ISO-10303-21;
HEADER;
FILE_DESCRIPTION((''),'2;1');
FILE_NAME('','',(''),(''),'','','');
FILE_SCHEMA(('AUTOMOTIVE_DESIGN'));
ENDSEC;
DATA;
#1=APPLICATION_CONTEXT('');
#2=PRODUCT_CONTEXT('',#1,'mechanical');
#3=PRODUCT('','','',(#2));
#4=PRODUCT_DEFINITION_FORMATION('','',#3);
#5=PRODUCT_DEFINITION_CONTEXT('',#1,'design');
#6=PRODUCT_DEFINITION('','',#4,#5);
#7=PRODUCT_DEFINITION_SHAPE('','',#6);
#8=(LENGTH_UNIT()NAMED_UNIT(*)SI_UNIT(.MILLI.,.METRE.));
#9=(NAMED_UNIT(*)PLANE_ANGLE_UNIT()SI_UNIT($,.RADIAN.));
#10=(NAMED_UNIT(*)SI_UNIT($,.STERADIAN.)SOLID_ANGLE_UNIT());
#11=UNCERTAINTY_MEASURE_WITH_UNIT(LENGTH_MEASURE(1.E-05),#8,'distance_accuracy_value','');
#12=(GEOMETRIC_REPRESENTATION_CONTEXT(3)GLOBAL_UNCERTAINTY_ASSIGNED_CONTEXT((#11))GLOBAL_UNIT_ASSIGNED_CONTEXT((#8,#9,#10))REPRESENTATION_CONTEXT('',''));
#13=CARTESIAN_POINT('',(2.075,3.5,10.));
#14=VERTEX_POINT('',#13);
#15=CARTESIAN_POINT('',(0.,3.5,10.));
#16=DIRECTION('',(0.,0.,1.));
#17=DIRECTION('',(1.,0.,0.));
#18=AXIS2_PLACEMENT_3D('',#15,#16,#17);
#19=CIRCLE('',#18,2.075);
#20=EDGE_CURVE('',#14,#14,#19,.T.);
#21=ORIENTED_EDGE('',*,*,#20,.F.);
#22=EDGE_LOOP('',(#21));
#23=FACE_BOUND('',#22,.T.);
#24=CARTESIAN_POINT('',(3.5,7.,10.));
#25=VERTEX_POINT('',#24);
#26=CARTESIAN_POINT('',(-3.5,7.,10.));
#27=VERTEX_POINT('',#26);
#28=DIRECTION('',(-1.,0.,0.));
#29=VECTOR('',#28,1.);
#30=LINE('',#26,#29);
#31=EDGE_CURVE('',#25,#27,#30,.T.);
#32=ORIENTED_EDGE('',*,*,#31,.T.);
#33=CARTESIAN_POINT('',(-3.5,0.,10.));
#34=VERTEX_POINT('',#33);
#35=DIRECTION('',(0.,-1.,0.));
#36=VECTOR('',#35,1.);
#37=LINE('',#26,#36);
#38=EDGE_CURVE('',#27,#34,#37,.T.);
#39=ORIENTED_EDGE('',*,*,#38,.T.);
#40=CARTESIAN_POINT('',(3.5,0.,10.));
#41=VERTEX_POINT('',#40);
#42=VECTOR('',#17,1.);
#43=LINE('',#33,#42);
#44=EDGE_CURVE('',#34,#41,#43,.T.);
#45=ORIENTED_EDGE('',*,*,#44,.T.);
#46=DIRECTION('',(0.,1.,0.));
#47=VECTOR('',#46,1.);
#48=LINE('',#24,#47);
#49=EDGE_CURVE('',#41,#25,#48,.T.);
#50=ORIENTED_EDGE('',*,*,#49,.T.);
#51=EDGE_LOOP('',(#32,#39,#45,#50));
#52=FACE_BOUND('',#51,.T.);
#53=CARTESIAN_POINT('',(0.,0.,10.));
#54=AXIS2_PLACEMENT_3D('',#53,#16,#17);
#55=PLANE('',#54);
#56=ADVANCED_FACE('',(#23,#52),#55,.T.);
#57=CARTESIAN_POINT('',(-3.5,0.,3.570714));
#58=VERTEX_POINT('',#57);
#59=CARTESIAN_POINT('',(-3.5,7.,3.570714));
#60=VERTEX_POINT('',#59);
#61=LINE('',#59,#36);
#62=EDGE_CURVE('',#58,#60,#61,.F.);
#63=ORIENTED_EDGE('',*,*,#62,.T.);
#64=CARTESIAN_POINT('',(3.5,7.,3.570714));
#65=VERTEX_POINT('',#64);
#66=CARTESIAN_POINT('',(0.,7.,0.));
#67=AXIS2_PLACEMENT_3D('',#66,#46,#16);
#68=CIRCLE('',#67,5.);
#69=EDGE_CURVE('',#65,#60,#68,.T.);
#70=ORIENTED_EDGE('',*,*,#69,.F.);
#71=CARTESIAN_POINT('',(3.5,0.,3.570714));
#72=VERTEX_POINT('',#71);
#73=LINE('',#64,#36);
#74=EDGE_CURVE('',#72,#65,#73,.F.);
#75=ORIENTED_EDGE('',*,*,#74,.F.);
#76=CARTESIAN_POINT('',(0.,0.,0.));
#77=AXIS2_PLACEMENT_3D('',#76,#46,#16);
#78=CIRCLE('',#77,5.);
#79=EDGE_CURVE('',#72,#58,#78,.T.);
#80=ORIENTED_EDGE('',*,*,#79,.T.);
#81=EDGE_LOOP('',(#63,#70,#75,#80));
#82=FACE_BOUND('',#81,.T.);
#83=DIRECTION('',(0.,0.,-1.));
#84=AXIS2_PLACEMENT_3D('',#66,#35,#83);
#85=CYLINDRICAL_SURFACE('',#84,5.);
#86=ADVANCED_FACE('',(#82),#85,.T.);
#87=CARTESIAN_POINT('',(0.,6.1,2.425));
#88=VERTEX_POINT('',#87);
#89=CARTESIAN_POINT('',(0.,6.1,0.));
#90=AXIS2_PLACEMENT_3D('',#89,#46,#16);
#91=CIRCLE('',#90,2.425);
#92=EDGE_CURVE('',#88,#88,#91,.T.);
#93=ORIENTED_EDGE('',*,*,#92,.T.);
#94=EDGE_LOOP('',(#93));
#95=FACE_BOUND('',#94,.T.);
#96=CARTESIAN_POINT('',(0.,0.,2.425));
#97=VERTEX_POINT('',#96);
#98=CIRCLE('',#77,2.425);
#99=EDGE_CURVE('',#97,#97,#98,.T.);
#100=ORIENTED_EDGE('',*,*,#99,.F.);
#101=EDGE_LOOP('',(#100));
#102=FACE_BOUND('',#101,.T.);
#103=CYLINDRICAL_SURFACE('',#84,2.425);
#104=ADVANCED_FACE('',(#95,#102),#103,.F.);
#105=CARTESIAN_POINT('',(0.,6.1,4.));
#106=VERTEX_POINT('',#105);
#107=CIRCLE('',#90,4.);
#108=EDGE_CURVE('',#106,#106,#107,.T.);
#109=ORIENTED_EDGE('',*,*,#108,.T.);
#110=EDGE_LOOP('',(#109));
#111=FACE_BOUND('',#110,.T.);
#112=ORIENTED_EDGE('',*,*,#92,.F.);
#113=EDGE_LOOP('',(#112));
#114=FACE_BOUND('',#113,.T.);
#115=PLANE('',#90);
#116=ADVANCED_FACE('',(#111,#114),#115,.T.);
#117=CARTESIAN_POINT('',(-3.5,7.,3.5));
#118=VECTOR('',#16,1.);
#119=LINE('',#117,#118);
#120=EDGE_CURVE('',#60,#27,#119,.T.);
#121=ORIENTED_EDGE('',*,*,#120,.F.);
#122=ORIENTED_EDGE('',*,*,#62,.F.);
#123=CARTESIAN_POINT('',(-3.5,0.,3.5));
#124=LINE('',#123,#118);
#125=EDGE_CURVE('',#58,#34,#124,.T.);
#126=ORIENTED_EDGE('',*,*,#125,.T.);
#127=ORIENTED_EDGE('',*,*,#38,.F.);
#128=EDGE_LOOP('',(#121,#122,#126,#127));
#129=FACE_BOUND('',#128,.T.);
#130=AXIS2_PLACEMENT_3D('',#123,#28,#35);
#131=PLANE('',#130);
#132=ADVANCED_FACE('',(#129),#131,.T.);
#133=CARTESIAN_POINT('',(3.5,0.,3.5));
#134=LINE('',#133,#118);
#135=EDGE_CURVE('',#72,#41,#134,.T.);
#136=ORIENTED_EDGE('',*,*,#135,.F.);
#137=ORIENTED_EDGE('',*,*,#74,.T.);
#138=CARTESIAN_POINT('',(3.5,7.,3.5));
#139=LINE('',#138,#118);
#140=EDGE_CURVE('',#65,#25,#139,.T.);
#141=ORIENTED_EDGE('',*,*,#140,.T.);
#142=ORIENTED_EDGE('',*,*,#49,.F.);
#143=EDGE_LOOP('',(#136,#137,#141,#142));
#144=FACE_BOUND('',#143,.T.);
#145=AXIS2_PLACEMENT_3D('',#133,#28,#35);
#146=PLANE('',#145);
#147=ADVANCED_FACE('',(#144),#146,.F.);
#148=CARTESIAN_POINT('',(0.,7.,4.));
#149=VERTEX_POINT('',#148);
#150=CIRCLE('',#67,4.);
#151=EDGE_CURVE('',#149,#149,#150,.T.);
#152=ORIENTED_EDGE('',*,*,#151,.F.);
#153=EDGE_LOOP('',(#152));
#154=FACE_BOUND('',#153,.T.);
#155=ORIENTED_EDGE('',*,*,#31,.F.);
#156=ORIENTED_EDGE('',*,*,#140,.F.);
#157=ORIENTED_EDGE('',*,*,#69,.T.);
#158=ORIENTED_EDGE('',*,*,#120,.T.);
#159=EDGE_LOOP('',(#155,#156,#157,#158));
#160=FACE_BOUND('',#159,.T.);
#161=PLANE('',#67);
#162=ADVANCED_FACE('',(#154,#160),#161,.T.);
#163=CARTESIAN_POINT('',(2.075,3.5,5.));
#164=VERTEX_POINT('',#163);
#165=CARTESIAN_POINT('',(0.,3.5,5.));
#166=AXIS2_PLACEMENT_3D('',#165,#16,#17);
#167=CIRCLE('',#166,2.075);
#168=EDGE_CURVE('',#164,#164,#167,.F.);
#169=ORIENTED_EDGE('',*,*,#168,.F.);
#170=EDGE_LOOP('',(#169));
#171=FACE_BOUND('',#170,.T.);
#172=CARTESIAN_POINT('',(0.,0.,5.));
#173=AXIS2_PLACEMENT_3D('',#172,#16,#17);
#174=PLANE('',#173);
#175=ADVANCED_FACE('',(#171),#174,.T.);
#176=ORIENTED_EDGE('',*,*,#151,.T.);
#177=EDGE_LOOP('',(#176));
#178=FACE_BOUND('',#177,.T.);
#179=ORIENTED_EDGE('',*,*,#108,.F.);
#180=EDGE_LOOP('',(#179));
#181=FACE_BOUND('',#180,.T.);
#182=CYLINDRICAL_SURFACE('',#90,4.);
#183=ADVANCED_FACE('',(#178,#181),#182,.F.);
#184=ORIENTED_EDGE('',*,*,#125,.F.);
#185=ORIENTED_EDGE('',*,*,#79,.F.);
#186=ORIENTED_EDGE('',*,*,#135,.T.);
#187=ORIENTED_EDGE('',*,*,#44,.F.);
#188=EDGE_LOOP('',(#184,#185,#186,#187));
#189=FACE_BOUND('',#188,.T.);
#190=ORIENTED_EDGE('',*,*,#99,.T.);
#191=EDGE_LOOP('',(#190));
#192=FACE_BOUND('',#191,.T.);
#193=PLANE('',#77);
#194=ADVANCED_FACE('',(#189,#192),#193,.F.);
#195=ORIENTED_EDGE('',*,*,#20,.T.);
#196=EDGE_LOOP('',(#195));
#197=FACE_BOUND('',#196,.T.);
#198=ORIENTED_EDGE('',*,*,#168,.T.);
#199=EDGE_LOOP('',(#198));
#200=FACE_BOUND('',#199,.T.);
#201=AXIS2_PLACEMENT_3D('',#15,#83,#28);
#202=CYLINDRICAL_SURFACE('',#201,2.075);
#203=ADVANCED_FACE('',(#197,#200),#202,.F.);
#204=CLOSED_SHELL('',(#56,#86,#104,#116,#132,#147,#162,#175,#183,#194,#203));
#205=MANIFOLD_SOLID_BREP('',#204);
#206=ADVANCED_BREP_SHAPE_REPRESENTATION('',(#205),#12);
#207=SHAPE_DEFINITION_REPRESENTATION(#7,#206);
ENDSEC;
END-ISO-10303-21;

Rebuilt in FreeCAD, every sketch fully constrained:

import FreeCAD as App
import Part
import Sketcher

V = App.Vector
Q = App.Units.Quantity


def add_polygon(sketch, points):
    """Adds a closed chain of lines whose ends are joined by coincident constraints."""
    first, n = sketch.GeometryCount, len(points)
    for a, b in zip(points, points[1:] + points[:1]):
        sketch.addGeometry(Part.LineSegment(App.Vector(*a, 0), App.Vector(*b, 0)), False)
    for i in range(n):
        sketch.addConstraint(Sketcher.Constraint("Coincident", first + i, 2, first + (i + 1) % n, 1))

doc = App.newDocument("Part")
body = doc.addObject("PartDesign::Body", "Body")

# Sketch on XZ plane
sketch1 = body.newObject("Sketcher::SketchObject", "Sketch")
sketch1.AttachmentSupport = (doc.getObject("XZ_Plane"), [""])
sketch1.MapMode = "FlatFace"
sketch1.addGeometry(Part.Circle(V(0, 0, 0), V(0, 0, 1), 5), False)
sketch1.addGeometry(Part.Circle(V(0, 0, 0), V(0, 0, 1), 2.4), False)
sketch1.addConstraint(Sketcher.Constraint("Coincident", 0, 3, -1, 1))
sketch1.addConstraint(Sketcher.Constraint("Coincident", 1, 3, -1, 1))
sketch1.addConstraint(Sketcher.Constraint("Diameter", 0, Q("10 mm")))
sketch1.addConstraint(Sketcher.Constraint("Diameter", 1, Q("4.85 mm")))
pad1 = body.newObject("PartDesign::Pad", "Pad")
pad1.Profile = sketch1
pad1.Length = 7
pad1.Reversed = True

# Sketch on XY plane
sketch2 = body.newObject("Sketcher::SketchObject", "Sketch001")
sketch2.AttachmentSupport = (doc.getObject("XY_Plane"), [""])
sketch2.MapMode = "FlatFace"
sketch2.AttachmentOffset = App.Placement(V(0, 0, 5), App.Rotation())
add_polygon(sketch2, [(-4, 7), (-4, 0), (4, 0), (4, 7)])  # lines 0-3
sketch2.addConstraint(Sketcher.Constraint("Vertical", 0))
sketch2.addConstraint(Sketcher.Constraint("Horizontal", 1))
sketch2.addConstraint(Sketcher.Constraint("Vertical", 2))
sketch2.addConstraint(Sketcher.Constraint("Horizontal", 3))
sketch2.addConstraint(Sketcher.Constraint("Symmetric", 0, 2, 1, 2, -1, 1))
sketch2.addConstraint(Sketcher.Constraint("Equal", 3, 0))
sketch2.addConstraint(Sketcher.Constraint("DistanceX", 1, 1, 1, 2, Q("7 mm")))
pad2 = body.newObject("PartDesign::Pad", "Pad001")
pad2.Profile = sketch2
pad2.Length = 1.5
pad2.Reversed = True

# Sketch on XY plane
sketch3 = body.newObject("Sketcher::SketchObject", "Sketch002")
sketch3.AttachmentSupport = (doc.getObject("XY_Plane"), [""])
sketch3.MapMode = "FlatFace"
sketch3.AttachmentOffset = App.Placement(V(0, 0, 5), App.Rotation())
add_polygon(sketch3, [(-3.5, 7), (-3.5, 0), (3.5, 0), (3.5, 7)])  # lines 0-3
sketch3.addGeometry(Part.Circle(V(0, 3.5, 0), V(0, 0, 1), 2.1), False)  # 4
sketch3.addConstraint(Sketcher.Constraint("Vertical", 0))
sketch3.addConstraint(Sketcher.Constraint("Horizontal", 1))
sketch3.addConstraint(Sketcher.Constraint("Vertical", 2))
sketch3.addConstraint(Sketcher.Constraint("Horizontal", 3))
sketch3.addConstraint(Sketcher.Constraint("Symmetric", 0, 2, 1, 2, -1, 1))
sketch3.addConstraint(Sketcher.Constraint("PointOnObject", 4, 3, -2))
sketch3.addConstraint(Sketcher.Constraint("Equal", 3, 0))
sketch3.addConstraint(Sketcher.Constraint("Diameter", 4, Q("4.15 mm")))
sketch3.addConstraint(Sketcher.Constraint("DistanceX", 1, 1, 1, 2, Q("7 mm")))
sketch3.addConstraint(Sketcher.Constraint("DistanceY", -1, 1, 4, 3, Q("3.5 mm")))
pad3 = body.newObject("PartDesign::Pad", "Pad002")
pad3.Profile = sketch3
pad3.Length = 5

# Sketch on XZ plane
sketch4 = body.newObject("Sketcher::SketchObject", "Sketch003")
sketch4.AttachmentSupport = (doc.getObject("XZ_Plane"), [""])
sketch4.MapMode = "FlatFace"
sketch4.AttachmentOffset = App.Placement(V(0, 0, -7), App.Rotation())
sketch4.addGeometry(Part.Circle(V(0, 0, 0), V(0, 0, 1), 4), False)
sketch4.addConstraint(Sketcher.Constraint("Coincident", 0, 3, -1, 1))
sketch4.addConstraint(Sketcher.Constraint("Diameter", 0, Q("8 mm")))
pocket1 = body.newObject("PartDesign::Pocket", "Pocket")
pocket1.Profile = sketch4
pocket1.Length = 0.9
pocket1.Reversed = True

doc.recompute()
